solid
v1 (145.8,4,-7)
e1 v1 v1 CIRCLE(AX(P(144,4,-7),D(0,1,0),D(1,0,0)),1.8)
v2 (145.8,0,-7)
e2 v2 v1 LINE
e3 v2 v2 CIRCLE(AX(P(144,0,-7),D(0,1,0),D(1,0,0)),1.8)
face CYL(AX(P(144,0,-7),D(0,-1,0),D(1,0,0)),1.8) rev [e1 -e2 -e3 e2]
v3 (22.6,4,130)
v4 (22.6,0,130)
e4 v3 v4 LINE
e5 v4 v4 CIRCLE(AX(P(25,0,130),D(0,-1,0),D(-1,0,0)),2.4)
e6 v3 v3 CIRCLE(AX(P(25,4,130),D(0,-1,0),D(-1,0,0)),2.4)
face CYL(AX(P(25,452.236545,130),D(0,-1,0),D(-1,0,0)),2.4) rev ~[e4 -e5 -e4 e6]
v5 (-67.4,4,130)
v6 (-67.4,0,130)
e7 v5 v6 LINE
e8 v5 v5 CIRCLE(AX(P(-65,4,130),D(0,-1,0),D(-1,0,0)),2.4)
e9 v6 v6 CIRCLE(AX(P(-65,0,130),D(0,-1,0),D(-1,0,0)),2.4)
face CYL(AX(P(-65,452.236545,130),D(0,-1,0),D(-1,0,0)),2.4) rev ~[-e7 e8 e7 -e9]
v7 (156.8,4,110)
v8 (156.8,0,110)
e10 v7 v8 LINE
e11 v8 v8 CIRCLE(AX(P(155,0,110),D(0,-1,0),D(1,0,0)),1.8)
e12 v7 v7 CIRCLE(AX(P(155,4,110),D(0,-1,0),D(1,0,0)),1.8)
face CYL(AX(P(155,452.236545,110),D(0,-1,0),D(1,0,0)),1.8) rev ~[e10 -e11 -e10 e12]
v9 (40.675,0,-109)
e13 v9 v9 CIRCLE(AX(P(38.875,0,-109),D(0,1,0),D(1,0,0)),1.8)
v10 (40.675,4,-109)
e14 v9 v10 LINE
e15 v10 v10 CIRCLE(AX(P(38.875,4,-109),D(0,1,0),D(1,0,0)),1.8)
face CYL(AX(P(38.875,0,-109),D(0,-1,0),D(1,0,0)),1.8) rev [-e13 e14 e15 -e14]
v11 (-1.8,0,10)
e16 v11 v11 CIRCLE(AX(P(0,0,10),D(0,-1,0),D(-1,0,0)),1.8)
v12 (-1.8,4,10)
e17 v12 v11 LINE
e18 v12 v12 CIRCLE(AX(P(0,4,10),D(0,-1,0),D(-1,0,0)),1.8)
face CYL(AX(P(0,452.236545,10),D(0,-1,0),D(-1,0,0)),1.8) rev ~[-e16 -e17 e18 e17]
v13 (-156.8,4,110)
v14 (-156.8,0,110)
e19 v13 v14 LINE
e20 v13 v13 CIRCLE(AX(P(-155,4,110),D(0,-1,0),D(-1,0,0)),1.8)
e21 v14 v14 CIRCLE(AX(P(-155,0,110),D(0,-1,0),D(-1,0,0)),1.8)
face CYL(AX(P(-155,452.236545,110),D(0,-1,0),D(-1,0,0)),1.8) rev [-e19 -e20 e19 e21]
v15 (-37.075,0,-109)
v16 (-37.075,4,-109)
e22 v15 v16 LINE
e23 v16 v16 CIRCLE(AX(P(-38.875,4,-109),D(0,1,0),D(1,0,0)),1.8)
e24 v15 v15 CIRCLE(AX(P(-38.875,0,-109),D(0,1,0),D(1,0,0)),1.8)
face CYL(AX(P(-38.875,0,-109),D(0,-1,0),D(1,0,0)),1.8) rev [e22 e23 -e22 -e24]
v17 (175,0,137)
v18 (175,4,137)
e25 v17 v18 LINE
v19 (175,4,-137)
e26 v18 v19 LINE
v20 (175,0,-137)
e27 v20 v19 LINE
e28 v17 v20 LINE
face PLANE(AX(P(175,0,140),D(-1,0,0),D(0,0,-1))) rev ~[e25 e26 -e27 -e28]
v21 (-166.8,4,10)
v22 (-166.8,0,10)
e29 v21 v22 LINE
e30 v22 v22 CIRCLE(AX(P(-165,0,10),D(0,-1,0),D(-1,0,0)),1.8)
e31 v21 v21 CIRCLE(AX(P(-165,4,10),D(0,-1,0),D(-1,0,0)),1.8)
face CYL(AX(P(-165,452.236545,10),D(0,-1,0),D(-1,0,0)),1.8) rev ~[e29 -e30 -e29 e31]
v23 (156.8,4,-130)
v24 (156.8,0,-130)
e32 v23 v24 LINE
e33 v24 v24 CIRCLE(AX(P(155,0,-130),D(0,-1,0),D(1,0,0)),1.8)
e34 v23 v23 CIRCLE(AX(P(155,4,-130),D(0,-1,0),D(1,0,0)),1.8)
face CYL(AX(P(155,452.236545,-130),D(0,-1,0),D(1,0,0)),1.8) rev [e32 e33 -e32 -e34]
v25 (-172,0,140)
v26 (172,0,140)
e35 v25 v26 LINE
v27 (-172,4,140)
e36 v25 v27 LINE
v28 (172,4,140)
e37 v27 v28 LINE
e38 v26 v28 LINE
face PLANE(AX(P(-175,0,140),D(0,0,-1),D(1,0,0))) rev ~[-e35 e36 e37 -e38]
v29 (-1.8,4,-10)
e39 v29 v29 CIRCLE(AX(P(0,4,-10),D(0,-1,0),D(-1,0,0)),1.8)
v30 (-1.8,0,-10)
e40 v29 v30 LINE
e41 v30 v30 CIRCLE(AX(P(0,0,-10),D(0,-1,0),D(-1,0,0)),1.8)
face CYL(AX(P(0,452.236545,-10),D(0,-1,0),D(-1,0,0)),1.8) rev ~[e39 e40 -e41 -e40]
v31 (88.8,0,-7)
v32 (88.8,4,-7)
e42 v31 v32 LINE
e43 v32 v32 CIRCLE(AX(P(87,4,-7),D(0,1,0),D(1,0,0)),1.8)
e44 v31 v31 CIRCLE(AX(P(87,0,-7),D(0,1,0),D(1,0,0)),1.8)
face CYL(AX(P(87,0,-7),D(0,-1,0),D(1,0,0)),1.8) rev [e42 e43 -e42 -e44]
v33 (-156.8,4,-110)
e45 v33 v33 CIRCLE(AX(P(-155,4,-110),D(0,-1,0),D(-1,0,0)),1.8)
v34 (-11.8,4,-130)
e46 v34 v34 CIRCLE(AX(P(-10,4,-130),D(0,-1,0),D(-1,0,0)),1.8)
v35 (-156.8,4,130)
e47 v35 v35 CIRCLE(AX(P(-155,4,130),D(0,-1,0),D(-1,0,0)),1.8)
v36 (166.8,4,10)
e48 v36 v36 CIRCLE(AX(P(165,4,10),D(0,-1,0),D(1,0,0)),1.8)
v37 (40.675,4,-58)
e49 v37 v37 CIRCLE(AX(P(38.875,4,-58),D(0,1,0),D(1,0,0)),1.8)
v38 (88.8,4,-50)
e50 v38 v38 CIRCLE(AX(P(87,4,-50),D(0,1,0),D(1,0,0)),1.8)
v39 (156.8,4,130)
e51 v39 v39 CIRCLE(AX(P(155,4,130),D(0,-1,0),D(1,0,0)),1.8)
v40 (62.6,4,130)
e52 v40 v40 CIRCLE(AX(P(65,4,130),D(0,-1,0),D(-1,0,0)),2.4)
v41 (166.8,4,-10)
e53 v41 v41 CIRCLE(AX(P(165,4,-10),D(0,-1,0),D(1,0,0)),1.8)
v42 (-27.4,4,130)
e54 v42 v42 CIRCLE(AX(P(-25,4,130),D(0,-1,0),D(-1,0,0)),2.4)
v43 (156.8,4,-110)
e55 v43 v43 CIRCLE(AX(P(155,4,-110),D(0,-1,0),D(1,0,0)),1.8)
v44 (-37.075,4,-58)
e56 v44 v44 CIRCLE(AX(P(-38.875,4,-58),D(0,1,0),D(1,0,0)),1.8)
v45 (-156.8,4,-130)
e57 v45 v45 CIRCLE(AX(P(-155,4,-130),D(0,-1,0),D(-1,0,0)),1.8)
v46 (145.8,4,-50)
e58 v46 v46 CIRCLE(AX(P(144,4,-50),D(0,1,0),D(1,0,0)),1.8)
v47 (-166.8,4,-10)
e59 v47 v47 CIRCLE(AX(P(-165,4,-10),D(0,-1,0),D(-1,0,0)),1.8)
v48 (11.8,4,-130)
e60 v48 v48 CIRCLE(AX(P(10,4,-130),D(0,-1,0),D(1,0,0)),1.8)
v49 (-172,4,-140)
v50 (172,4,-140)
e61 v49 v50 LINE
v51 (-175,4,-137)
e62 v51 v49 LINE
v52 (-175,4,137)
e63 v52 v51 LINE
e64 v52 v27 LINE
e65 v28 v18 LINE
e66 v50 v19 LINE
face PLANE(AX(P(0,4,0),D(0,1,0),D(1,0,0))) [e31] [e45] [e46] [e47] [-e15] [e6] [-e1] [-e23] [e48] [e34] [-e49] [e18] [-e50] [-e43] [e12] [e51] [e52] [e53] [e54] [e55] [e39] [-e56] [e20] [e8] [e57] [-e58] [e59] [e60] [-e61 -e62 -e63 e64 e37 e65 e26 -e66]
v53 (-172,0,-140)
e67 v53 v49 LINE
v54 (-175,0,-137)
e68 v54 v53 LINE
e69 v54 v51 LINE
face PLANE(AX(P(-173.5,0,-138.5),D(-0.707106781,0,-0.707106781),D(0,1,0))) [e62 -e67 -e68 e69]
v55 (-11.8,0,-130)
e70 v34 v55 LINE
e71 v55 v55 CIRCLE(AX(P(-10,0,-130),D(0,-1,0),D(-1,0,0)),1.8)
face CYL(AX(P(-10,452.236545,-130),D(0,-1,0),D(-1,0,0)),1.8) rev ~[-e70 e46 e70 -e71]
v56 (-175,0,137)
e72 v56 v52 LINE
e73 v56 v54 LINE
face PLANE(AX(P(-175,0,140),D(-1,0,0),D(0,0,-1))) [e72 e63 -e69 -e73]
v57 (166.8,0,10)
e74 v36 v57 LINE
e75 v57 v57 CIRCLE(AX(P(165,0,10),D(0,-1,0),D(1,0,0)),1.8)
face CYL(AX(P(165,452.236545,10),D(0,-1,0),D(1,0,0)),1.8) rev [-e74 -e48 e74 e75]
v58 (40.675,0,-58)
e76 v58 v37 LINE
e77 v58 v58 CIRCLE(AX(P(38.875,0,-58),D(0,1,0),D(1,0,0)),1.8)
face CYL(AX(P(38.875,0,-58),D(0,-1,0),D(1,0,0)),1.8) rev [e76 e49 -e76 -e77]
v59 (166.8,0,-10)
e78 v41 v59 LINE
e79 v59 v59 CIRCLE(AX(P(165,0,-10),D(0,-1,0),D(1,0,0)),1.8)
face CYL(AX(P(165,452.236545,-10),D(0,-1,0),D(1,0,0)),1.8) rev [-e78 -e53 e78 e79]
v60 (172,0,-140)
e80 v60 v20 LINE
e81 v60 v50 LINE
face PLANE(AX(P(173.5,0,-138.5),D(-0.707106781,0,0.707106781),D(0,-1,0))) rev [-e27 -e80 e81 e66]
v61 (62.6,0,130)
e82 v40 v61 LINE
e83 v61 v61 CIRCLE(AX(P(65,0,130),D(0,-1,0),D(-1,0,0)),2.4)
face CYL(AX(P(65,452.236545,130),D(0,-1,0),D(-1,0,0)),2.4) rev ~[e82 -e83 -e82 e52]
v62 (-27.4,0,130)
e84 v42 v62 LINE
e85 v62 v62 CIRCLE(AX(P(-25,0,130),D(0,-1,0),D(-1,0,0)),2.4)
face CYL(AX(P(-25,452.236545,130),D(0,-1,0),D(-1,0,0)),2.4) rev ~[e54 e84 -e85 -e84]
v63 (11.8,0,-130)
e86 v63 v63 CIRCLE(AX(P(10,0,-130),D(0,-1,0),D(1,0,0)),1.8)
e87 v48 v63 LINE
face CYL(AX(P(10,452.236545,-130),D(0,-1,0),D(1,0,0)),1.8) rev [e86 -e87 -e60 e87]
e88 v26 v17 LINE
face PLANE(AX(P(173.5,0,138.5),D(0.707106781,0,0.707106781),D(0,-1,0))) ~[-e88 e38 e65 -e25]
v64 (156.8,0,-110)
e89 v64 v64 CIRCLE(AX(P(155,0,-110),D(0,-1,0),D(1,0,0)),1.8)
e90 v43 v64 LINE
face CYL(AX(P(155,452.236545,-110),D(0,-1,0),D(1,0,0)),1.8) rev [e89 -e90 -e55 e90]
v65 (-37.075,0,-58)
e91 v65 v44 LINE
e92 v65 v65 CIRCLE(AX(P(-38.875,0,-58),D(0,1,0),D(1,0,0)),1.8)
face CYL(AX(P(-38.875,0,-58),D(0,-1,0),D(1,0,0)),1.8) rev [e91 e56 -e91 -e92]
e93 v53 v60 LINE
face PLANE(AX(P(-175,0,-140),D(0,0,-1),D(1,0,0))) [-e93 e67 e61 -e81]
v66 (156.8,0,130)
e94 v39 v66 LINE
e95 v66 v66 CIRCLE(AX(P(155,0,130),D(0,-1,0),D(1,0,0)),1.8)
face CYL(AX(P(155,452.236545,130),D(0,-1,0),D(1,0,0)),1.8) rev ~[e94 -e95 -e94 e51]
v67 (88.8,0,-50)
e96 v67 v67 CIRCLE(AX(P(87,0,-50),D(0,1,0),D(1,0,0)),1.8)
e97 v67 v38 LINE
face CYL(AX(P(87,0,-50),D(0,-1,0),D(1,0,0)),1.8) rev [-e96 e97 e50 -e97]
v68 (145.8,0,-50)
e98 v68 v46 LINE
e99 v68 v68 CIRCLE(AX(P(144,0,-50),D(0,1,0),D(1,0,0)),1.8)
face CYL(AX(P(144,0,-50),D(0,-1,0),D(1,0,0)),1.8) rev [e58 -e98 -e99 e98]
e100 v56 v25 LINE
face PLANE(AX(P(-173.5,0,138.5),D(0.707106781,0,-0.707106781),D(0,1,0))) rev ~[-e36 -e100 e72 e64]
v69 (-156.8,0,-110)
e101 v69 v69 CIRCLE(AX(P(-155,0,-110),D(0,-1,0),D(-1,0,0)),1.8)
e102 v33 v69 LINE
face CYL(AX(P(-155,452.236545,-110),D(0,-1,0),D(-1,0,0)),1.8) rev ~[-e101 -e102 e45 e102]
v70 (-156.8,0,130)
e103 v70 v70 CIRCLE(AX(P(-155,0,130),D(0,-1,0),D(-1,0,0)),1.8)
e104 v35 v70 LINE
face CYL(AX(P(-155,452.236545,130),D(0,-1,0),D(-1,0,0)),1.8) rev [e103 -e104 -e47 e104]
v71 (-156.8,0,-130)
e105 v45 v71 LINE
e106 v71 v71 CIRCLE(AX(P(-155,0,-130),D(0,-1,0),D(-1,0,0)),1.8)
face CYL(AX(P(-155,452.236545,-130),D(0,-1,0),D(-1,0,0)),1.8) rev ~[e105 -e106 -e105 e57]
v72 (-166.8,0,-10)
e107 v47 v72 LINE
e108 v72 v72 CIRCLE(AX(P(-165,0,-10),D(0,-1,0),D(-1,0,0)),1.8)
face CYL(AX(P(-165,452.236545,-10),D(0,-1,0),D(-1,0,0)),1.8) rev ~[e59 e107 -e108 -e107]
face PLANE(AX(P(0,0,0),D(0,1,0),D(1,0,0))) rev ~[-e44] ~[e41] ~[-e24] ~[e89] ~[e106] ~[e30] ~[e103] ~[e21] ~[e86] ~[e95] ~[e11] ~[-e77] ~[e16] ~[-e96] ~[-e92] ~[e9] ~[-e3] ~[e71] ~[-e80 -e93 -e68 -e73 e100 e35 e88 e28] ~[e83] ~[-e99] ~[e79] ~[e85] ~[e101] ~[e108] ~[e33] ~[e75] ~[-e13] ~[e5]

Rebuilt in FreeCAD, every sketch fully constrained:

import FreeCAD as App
import Part
import Sketcher
from FreeCAD import Vector
Q = App.Units.Quantity


def edges_at(feature, points):
    """Names of the edges that pass closest to the given points."""
    edges = feature.Shape.Edges
    near = lambda p: min(range(len(edges)), key=lambda i: edges[i].distToShape(Part.Vertex(*p))[0])
    return sorted({f"Edge{near(p) + 1}" for p in points})

doc = App.newDocument("Part")
body = doc.addObject("PartDesign::Body", "Body")

# Sketch on XZ plane
sketch1 = body.newObject("Sketcher::SketchObject", "Sketch")
sketch1.AttachmentSupport = (doc.getObject("XZ_Plane"), [""])
sketch1.MapMode = "FlatFace"
sketch1.addGeometry([
    Part.LineSegment(Vector(-175, -140, 0), Vector(-175, 140, 0)),  # 0
    Part.LineSegment(Vector(-175, 140, 0), Vector(175, 140, 0)),  # 1
    Part.LineSegment(Vector(175, 140, 0), Vector(175, -140, 0)),  # 2
    Part.LineSegment(Vector(175, -140, 0), Vector(-175, -140, 0)),  # 3
    Part.Circle(Vector(87, -7, 0), Vector(0, 0, 1), 1.8),  # 4
    Part.Circle(Vector(144, -7, 0), Vector(0, 0, 1), 1.8),  # 5
    Part.Circle(Vector(87, -50, 0), Vector(0, 0, 1), 1.8),  # 6
    Part.Circle(Vector(144, -50, 0), Vector(0, 0, 1), 1.8),  # 7
    Part.Circle(Vector(-38.875, -58, 0), Vector(0, 0, 1), 1.8),  # 8
    Part.Circle(Vector(38.875, -58, 0), Vector(0, 0, 1), 1.8),  # 9
    Part.Circle(Vector(-38.875, -109, 0), Vector(0, 0, 1), 1.8),  # 10
    Part.Circle(Vector(38.875, -109, 0), Vector(0, 0, 1), 1.8),  # 11
], False)
sketch1.addConstraint([
    Sketcher.Constraint("Coincident", 0, 2, 1, 1),
    Sketcher.Constraint("Coincident", 1, 2, 2, 1),
    Sketcher.Constraint("Coincident", 2, 2, 3, 1),
    Sketcher.Constraint("Coincident", 3, 2, 0, 1),
    Sketcher.Constraint("Vertical", 0),
    Sketcher.Constraint("Horizontal", 1),
    Sketcher.Constraint("Vertical", 2),
    Sketcher.Constraint("Horizontal", 3),
    Sketcher.Constraint("Equal", 4, 5),
    Sketcher.Constraint("Equal", 5, 6),
    Sketcher.Constraint("Equal", 6, 7),
    Sketcher.Constraint("Equal", 7, 8),
    Sketcher.Constraint("Equal", 8, 9),
    Sketcher.Constraint("Equal", 9, 10),
    Sketcher.Constraint("Equal", 10, 11),
    Sketcher.Constraint("Symmetric", 0, 2, 2, 2, -1, 1),
    Sketcher.Constraint("Symmetric", 8, 3, 9, 3, -2),
    Sketcher.Constraint("Symmetric", 10, 3, 11, 3, -2),
    Sketcher.Constraint("Horizontal", 4, 3, 5, 3),
    Sketcher.Constraint("Horizontal", 6, 3, 7, 3),
    Sketcher.Constraint("Vertical", 4, 3, 6, 3),
    Sketcher.Constraint("Vertical", 5, 3, 7, 3),
    Sketcher.Constraint("Vertical", 8, 3, 10, 3),
    Sketcher.Constraint("Diameter", 4, Q("3.6 mm")),
    Sketcher.Constraint("DistanceX", 1, 1, 1, 2, Q("350 mm")),
    Sketcher.Constraint("DistanceY", 0, 1, 0, 2, Q("280 mm")),
    Sketcher.Constraint("DistanceX", -1, 1, 4, 3, Q("87 mm")),
    Sketcher.Constraint("DistanceY", 4, 3, -1, 1, Q("7 mm")),
    Sketcher.Constraint("DistanceX", -1, 1, 5, 3, Q("144 mm")),
    Sketcher.Constraint("DistanceY", 6, 3, -1, 1, Q("50 mm")),
    Sketcher.Constraint("DistanceY", 8, 3, -1, 1, Q("58 mm")),
    Sketcher.Constraint("DistanceY", 10, 3, -1, 1, Q("109 mm")),
    Sketcher.Constraint("DistanceX", 8, 3, 9, 3, Q("77.75 mm")),
])
pad1 = body.newObject("PartDesign::Pad", "Pad")
pad1.Profile = sketch1
pad1.Length = 4
pad1.Reversed = True
doc.recompute()

chamfer = body.newObject("PartDesign::Chamfer", "Chamfer")
chamfer.Base = (pad1, edges_at(pad1, [
    (-175, 2, -140),
    (175, 2, -140),
    (175, 2, 140),
    (-175, 2, 140),
]))
chamfer.Size = 3

# Sketch on XZ plane
sketch2 = body.newObject("Sketcher::SketchObject", "Sketch001")
sketch2.AttachmentSupport = (doc.getObject("XZ_Plane"), [""])
sketch2.MapMode = "FlatFace"
sketch2.AttachmentOffset = App.Placement(Vector(0, 0, -4), App.Rotation())
sketch2.addGeometry([
    Part.Circle(Vector(-155, -130, 0), Vector(0, 0, 1), 1.8),
    Part.Circle(Vector(-155, -110, 0), Vector(0, 0, 1), 1.8),
], False)
sketch2.addConstraint([
    Sketcher.Constraint("Equal", 0, 1),
    Sketcher.Constraint("Vertical", 0, 3, 1, 3),
    Sketcher.Constraint("Diameter", 0, Q("3.6 mm")),
    Sketcher.Constraint("DistanceX", 0, 3, -1, 1, Q("155 mm")),
    Sketcher.Constraint("DistanceY", 0, 3, -1, 1, Q("130 mm")),
    Sketcher.Constraint("DistanceY", 1, 3, -1, 1, Q("110 mm")),
])
doc.recompute()
hole = body.newObject("PartDesign::Hole", "Hole")
hole.Profile = sketch2
hole.ThreadType = "None"
hole.Diameter = 3.6
hole.DepthType = "ThroughAll"
hole.Reversed = True
doc.recompute()

mirrored = body.newObject("PartDesign::Mirrored", "Mirrored")
mirrored.Originals = [hole]
mirrored.MirrorPlane = (doc.getObject("YZ_Plane"), [""])
body.Tip = mirrored
doc.recompute()

mirrored2 = body.newObject("PartDesign::Mirrored", "Mirrored001")
mirrored2.Originals = [hole]
mirrored2.MirrorPlane = (doc.getObject("XY_Plane"), [""])
body.Tip = mirrored2

# Sketch on XZ plane
sketch3 = body.newObject("Sketcher::SketchObject", "Sketch002")
sketch3.AttachmentSupport = (doc.getObject("XZ_Plane"), [""])
sketch3.MapMode = "FlatFace"
sketch3.AttachmentOffset = App.Placement(Vector(0, 0, -4), App.Rotation())
sketch3.addGeometry([
    Part.Circle(Vector(155, 130, 0), Vector(0, 0, 1), 1.8),
    Part.Circle(Vector(155, 110, 0), Vector(0, 0, 1), 1.8),
], False)
sketch3.addConstraint([
    Sketcher.Constraint("Equal", 0, 1),
    Sketcher.Constraint("Vertical", 0, 3, 1, 3),
    Sketcher.Constraint("Diameter", 0, Q("3.6 mm")),
    Sketcher.Constraint("DistanceX", -1, 1, 0, 3, Q("155 mm")),
    Sketcher.Constraint("DistanceY", -1, 1, 0, 3, Q("130 mm")),
    Sketcher.Constraint("DistanceY", -1, 1, 1, 3, Q("110 mm")),
])
doc.recompute()
hole2 = body.newObject("PartDesign::Hole", "Hole001")
hole2.Profile = sketch3
hole2.ThreadType = "None"
hole2.Diameter = 3.6
hole2.DepthType = "ThroughAll"
hole2.Reversed = True

# Sketch on XZ plane
sketch4 = body.newObject("Sketcher::SketchObject", "Sketch003")
sketch4.AttachmentSupport = (doc.getObject("XZ_Plane"), [""])
sketch4.MapMode = "FlatFace"
sketch4.AttachmentOffset = App.Placement(Vector(0, 0, -4), App.Rotation())
sketch4.addGeometry([
    Part.Circle(Vector(0, -10, 0), Vector(0, 0, 1), 1.8),
    Part.Circle(Vector(0, 10, 0), Vector(0, 0, 1), 1.8),
], False)
sketch4.addConstraint([
    Sketcher.Constraint("Equal", 0, 1),
    Sketcher.Constraint("Symmetric", 0, 3, 1, 3, -1, 1),
    Sketcher.Constraint("PointOnObject", 0, 3, -2),
    Sketcher.Constraint("Diameter", 0, Q("3.6 mm")),
    Sketcher.Constraint("DistanceY", 0, 3, -1, 1, Q("10 mm")),
])
doc.recompute()
hole3 = body.newObject("PartDesign::Hole", "Hole002")
hole3.Profile = sketch4
hole3.ThreadType = "None"
hole3.Diameter = 3.6
hole3.DepthType = "ThroughAll"
hole3.Reversed = True

# Sketch on XZ plane
sketch5 = body.newObject("Sketcher::SketchObject", "Sketch004")
sketch5.AttachmentSupport = (doc.getObject("XZ_Plane"), [""])
sketch5.MapMode = "FlatFace"
sketch5.AttachmentOffset = App.Placement(Vector(0, 0, -4), App.Rotation())
sketch5.addGeometry([
    Part.Circle(Vector(-65, 130, 0), Vector(0, 0, 1), 2.4),
    Part.Circle(Vector(-25, 130, 0), Vector(0, 0, 1), 2.4),
    Part.Circle(Vector(25, 130, 0), Vector(0, 0, 1), 2.4),
    Part.Circle(Vector(65, 130, 0), Vector(0, 0, 1), 2.4),
], False)
sketch5.addConstraint([
    Sketcher.Constraint("Equal", 0, 1),
    Sketcher.Constraint("Equal", 1, 2),
    Sketcher.Constraint("Equal", 2, 3),
    Sketcher.Constraint("Symmetric", 1, 3, 2, 3, -2),
    Sketcher.Constraint("Symmetric", 0, 3, 3, 3, -2),
    Sketcher.Constraint("Horizontal", 0, 3, 1, 3),
    Sketcher.Constraint("Diameter", 0, Q("4.8 mm")),
    Sketcher.Constraint("DistanceX", 0, 3, -1, 1, Q("65 mm")),
    Sketcher.Constraint("DistanceY", -1, 1, 0, 3, Q("130 mm")),
    Sketcher.Constraint("DistanceX", 1, 3, -1, 1, Q("25 mm")),
])
doc.recompute()
hole4 = body.newObject("PartDesign::Hole", "Hole003")
hole4.Profile = sketch5
hole4.ThreadType = "None"
hole4.Diameter = 4.8
hole4.DepthType = "ThroughAll"
hole4.Reversed = True

# Sketch on XZ plane
sketch6 = body.newObject("Sketcher::SketchObject", "Sketch005")
sketch6.AttachmentSupport = (doc.getObject("XZ_Plane"), [""])
sketch6.MapMode = "FlatFace"
sketch6.AttachmentOffset = App.Placement(Vector(0, 0, -4), App.Rotation())
sketch6.addGeometry([
    Part.Circle(Vector(-165, -10, 0), Vector(0, 0, 1), 1.8),
    Part.Circle(Vector(-165, 10, 0), Vector(0, 0, 1), 1.8),
    Part.Circle(Vector(-10, -130, 0), Vector(0, 0, 1), 1.8),
], False)
sketch6.addConstraint([
    Sketcher.Constraint("Equal", 0, 1),
    Sketcher.Constraint("Equal", 1, 2),
    Sketcher.Constraint("Symmetric", 0, 3, 1, 3, -1),
    Sketcher.Constraint("Diameter", 0, Q("3.6 mm")),
    Sketcher.Constraint("DistanceX", 0, 3, -1, 1, Q("165 mm")),
    Sketcher.Constraint("DistanceY", 0, 3, -1, 1, Q("10 mm")),
    Sketcher.Constraint("DistanceX", 2, 3, -1, 1, Q("10 mm")),
    Sketcher.Constraint("DistanceY", 2, 3, -1, 1, Q("130 mm")),
])
doc.recompute()
hole5 = body.newObject("PartDesign::Hole", "Hole004")
hole5.Profile = sketch6
hole5.ThreadType = "None"
hole5.Diameter = 3.6
hole5.DepthType = "ThroughAll"
hole5.Reversed = True
doc.recompute()

mirrored3 = body.newObject("PartDesign::Mirrored", "Mirrored002")
mirrored3.Originals = [hole5]
mirrored3.MirrorPlane = (doc.getObject("YZ_Plane"), [""])
body.Tip = mirrored3

doc.recompute()
